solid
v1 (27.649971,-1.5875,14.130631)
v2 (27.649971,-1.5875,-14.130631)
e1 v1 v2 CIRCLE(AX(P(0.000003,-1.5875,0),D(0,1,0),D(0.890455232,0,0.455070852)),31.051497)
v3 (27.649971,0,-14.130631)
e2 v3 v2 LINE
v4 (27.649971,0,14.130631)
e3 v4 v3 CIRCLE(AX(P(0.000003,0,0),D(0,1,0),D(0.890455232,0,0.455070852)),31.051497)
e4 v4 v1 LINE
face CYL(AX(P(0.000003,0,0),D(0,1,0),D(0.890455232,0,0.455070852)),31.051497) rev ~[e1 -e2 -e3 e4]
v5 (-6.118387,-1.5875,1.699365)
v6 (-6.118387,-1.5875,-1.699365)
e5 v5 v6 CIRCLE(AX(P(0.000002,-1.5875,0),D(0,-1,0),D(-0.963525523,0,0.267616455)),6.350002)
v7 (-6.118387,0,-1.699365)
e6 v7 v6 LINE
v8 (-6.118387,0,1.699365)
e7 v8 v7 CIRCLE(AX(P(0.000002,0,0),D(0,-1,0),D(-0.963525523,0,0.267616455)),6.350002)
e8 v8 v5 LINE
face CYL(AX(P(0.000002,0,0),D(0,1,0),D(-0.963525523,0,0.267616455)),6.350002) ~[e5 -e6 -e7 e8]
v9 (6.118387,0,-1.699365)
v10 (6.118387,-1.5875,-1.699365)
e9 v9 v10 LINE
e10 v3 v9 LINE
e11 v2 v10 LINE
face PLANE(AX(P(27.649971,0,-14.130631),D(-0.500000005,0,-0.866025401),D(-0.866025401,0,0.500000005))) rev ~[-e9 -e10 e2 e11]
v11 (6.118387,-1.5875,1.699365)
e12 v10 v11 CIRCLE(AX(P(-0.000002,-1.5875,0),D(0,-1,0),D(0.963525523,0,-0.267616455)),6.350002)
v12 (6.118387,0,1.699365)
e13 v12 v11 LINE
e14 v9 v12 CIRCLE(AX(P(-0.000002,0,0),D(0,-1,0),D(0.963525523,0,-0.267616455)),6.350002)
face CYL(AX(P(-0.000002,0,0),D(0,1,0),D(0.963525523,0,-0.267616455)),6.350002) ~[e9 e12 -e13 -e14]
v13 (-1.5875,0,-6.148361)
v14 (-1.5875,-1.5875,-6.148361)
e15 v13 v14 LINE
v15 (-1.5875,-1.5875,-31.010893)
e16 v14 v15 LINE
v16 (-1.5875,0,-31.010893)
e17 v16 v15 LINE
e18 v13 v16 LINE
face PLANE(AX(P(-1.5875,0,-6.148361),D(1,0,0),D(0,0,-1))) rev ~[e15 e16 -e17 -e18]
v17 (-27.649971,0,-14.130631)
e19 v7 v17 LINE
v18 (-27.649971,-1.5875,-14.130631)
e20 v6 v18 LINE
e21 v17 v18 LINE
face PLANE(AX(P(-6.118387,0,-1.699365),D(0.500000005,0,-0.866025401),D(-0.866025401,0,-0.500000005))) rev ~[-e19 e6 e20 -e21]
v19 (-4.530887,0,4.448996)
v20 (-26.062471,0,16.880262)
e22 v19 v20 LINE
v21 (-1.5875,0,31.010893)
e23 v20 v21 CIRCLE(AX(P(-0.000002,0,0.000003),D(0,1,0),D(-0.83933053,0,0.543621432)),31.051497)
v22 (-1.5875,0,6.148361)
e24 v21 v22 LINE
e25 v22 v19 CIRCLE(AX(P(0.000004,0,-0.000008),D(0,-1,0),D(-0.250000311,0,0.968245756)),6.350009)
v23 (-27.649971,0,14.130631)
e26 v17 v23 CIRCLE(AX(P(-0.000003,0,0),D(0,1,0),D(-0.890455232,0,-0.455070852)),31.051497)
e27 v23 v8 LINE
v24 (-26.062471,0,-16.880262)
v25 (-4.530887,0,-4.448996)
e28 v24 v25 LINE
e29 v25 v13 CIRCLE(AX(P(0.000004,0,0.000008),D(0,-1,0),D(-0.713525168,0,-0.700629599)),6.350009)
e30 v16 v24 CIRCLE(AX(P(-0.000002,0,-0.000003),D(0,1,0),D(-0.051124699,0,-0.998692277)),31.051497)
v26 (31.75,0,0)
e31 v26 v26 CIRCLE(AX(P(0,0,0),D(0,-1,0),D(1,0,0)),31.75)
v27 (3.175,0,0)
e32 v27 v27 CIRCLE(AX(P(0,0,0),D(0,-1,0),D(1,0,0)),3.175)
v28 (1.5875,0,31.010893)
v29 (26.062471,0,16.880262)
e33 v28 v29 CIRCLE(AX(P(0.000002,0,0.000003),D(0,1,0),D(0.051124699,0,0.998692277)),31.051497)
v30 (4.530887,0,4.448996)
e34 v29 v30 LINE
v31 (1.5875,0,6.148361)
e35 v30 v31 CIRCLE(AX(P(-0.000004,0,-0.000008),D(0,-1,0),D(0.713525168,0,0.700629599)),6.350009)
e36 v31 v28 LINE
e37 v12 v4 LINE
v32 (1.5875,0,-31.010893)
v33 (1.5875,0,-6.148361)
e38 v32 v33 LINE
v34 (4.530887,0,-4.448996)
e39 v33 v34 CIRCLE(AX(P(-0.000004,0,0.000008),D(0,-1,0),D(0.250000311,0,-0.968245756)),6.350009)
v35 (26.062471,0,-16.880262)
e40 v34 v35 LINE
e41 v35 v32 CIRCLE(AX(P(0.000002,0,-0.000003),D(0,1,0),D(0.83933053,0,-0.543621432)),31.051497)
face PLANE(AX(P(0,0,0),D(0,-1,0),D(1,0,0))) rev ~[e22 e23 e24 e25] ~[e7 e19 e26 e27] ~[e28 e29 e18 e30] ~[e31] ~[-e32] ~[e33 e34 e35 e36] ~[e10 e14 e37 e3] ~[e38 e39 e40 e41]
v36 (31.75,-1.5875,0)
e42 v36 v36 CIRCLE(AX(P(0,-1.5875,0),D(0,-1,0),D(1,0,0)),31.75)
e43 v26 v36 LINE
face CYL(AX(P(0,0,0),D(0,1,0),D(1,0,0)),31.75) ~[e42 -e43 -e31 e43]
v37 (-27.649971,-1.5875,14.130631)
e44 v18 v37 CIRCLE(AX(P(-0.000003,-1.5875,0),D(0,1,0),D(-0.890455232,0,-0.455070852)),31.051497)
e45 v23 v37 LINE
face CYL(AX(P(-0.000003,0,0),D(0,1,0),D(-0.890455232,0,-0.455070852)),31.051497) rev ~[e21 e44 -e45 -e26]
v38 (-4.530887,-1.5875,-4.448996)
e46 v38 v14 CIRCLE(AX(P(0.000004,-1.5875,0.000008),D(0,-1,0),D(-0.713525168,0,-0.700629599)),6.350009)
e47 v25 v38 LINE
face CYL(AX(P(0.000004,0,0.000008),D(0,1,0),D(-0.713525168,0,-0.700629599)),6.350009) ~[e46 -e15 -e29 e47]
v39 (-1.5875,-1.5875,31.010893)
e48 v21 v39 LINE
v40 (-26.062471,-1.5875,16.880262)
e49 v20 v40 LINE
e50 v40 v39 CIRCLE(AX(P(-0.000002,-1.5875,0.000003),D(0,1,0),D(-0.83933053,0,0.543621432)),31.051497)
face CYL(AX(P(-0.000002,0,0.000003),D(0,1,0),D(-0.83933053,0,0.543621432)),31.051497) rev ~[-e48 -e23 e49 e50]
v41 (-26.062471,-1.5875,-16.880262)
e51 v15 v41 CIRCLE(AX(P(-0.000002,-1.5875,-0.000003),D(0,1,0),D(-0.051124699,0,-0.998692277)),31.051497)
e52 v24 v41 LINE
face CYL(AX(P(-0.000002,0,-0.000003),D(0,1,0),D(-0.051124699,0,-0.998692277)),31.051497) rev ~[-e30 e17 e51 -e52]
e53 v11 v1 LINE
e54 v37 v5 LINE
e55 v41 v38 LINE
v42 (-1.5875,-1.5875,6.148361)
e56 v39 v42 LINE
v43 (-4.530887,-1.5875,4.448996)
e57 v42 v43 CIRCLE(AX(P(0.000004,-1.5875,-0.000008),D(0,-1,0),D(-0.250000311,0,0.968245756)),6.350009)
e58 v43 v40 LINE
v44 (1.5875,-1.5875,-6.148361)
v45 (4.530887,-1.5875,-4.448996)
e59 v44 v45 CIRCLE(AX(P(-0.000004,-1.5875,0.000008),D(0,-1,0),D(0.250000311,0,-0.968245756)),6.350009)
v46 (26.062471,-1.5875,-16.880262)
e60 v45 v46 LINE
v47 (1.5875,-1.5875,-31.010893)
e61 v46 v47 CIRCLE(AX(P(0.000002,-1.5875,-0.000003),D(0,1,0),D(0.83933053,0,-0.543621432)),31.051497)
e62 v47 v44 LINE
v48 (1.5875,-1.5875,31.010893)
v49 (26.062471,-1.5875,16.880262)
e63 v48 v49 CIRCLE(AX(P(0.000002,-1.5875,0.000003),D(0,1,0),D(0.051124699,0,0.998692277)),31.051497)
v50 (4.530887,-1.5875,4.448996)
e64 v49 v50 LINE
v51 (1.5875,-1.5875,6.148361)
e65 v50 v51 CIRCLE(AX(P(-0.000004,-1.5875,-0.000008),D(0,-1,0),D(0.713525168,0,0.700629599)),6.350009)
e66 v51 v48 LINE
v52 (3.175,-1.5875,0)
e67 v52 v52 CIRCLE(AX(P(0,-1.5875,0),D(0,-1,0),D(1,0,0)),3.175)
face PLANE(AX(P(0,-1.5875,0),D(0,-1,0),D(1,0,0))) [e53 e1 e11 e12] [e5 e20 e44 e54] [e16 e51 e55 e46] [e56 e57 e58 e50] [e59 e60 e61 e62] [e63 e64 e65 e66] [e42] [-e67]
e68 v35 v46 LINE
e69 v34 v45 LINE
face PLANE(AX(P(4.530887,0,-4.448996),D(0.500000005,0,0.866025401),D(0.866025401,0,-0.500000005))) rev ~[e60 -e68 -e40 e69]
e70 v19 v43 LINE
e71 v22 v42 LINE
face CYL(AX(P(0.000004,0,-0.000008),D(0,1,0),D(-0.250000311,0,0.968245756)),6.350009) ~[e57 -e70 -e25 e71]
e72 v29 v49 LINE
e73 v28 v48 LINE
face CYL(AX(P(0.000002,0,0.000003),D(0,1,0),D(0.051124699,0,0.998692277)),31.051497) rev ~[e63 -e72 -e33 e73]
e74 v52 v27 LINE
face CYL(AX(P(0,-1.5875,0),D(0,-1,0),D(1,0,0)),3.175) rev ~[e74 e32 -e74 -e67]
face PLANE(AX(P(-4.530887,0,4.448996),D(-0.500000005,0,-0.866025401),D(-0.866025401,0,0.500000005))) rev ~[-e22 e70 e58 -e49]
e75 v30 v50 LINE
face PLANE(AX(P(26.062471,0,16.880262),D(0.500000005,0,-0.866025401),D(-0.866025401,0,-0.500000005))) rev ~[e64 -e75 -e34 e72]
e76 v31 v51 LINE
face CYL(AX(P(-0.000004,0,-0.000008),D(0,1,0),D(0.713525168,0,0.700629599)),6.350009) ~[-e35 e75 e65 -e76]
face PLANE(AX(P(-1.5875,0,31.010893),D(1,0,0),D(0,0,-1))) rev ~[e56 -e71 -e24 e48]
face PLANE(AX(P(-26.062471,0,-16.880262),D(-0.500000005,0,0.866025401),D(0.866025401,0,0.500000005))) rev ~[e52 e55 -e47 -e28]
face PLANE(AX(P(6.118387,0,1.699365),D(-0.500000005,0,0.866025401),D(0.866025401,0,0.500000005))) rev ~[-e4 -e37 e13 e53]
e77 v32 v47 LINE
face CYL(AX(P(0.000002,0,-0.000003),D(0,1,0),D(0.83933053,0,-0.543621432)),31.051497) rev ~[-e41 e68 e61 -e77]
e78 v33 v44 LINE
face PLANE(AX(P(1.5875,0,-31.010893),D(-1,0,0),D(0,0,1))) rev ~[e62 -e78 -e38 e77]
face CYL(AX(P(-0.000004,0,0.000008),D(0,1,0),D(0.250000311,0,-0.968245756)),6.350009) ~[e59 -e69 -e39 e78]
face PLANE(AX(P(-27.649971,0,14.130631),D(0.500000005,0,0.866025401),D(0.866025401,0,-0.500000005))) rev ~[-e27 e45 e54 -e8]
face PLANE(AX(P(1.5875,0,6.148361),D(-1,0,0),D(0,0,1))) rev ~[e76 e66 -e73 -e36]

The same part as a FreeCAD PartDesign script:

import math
import FreeCAD as App
import Part
import Sketcher
Q = App.Units.Quantity

doc = App.newDocument("Part")
body = doc.addObject("PartDesign::Body", "Body")

# Sketch on XZ plane
sketch1 = body.newObject("Sketcher::SketchObject", "Sketch")
sketch1.AttachmentSupport = (doc.getObject("XZ_Plane"), [""])
sketch1.MapMode = "FlatFace"
sketch1.addGeometry([
    Part.Circle(App.Vector(0, 0, 0), App.Vector(0, 0, 1), 31.8),  # 0
    Part.ArcOfCircle(Part.Circle(App.Vector(0, 0, 0), App.Vector(0, 0, 1), 31.1), math.radians(-147), math.radians(-93)),  # 1
    Part.LineSegment(App.Vector(-26.1, -16.9, 0), App.Vector(-4.5, -4.4, 0)),  # 2
    Part.ArcOfCircle(Part.Circle(App.Vector(0, 0, 0), App.Vector(0, 0, 1), 6.4), math.radians(-136), math.radians(-104)),  # 3
    Part.LineSegment(App.Vector(-1.6, -6.1, 0), App.Vector(-1.6, -31, 0)),  # 4
    Part.LineSegment(App.Vector(1.6, -31, 0), App.Vector(1.6, -6.1, 0)),  # 5
    Part.ArcOfCircle(Part.Circle(App.Vector(0, 0, 0), App.Vector(0, 0, 1), 6.4), math.radians(-76), math.radians(-44)),  # 6
    Part.LineSegment(App.Vector(4.5, -4.4, 0), App.Vector(26.1, -16.9, 0)),  # 7
    Part.ArcOfCircle(Part.Circle(App.Vector(0, 0, 0), App.Vector(0, 0, 1), 31.1), math.radians(-87), math.radians(-33)),  # 8
    Part.LineSegment(App.Vector(-27.6, 14.1, 0), App.Vector(-6.1, 1.7, 0)),  # 9
    Part.ArcOfCircle(Part.Circle(App.Vector(0, 0, 0), App.Vector(0, 0, 1), 6.4), math.radians(164), math.radians(196)),  # 10
    Part.LineSegment(App.Vector(-6.1, -1.7, 0), App.Vector(-27.6, -14.1, 0)),  # 11
    Part.ArcOfCircle(Part.Circle(App.Vector(0, 0, 0), App.Vector(0, 0, 1), 31.1), math.radians(153), math.radians(207)),  # 12
    Part.LineSegment(App.Vector(-4.5, 4.4, 0), App.Vector(-26.1, 16.9, 0)),  # 13
    Part.ArcOfCircle(Part.Circle(App.Vector(0, 0, 0), App.Vector(0, 0, 1), 31.1), math.radians(93), math.radians(147)),  # 14
    Part.LineSegment(App.Vector(-1.6, 31, 0), App.Vector(-1.6, 6.1, 0)),  # 15
    Part.ArcOfCircle(Part.Circle(App.Vector(0, 0, 0), App.Vector(0, 0, 1), 6.4), math.radians(104), math.radians(136)),  # 16
    Part.LineSegment(App.Vector(27.6, -14.1, 0), App.Vector(6.1, -1.7, 0)),  # 17
    Part.ArcOfCircle(Part.Circle(App.Vector(0, 0, 0), App.Vector(0, 0, 1), 6.4), math.radians(-16), math.radians(16)),  # 18
    Part.LineSegment(App.Vector(6.1, 1.7, 0), App.Vector(27.6, 14.1, 0)),  # 19
    Part.ArcOfCircle(Part.Circle(App.Vector(0, 0, 0), App.Vector(0, 0, 1), 31.1), math.radians(-27), math.radians(27)),  # 20
    Part.LineSegment(App.Vector(26.1, 16.9, 0), App.Vector(4.5, 4.4, 0)),  # 21
    Part.ArcOfCircle(Part.Circle(App.Vector(0, 0, 0), App.Vector(0, 0, 1), 6.4), math.radians(44), math.radians(76)),  # 22
    Part.LineSegment(App.Vector(1.6, 6.1, 0), App.Vector(1.6, 31, 0)),  # 23
    Part.ArcOfCircle(Part.Circle(App.Vector(0, 0, 0), App.Vector(0, 0, 1), 31.1), math.radians(33), math.radians(87)),  # 24
], False)
sketch1.addConstraint([
    Sketcher.Constraint("Coincident", 1, 1, 2, 1),
    Sketcher.Constraint("Coincident", 2, 2, 3, 1),
    Sketcher.Constraint("Coincident", 3, 2, 4, 1),
    Sketcher.Constraint("Coincident", 4, 2, 1, 2),
    Sketcher.Constraint("Coincident", 5, 2, 6, 1),
    Sketcher.Constraint("Coincident", 6, 2, 7, 1),
    Sketcher.Constraint("Coincident", 7, 2, 8, 2),
    Sketcher.Constraint("Coincident", 8, 1, 5, 1),
    Sketcher.Constraint("Coincident", 9, 2, 10, 1),
    Sketcher.Constraint("Coincident", 10, 2, 11, 1),
    Sketcher.Constraint("Coincident", 11, 2, 12, 2),
    Sketcher.Constraint("Coincident", 12, 1, 9, 1),
    Sketcher.Constraint("Coincident", 13, 2, 14, 2),
    Sketcher.Constraint("Coincident", 14, 1, 15, 1),
    Sketcher.Constraint("Coincident", 15, 2, 16, 1),
    Sketcher.Constraint("Coincident", 16, 2, 13, 1),
    Sketcher.Constraint("Coincident", 17, 2, 18, 1),
    Sketcher.Constraint("Coincident", 18, 2, 19, 1),
    Sketcher.Constraint("Coincident", 19, 2, 20, 2),
    Sketcher.Constraint("Coincident", 20, 1, 17, 1),
    Sketcher.Constraint("Coincident", 21, 2, 22, 1),
    Sketcher.Constraint("Coincident", 22, 2, 23, 1),
    Sketcher.Constraint("Coincident", 23, 2, 24, 2),
    Sketcher.Constraint("Coincident", 24, 1, 21, 1),
    Sketcher.Constraint("Vertical", 4),
    Sketcher.Constraint("Vertical", 5),
    Sketcher.Constraint("Vertical", 15),
    Sketcher.Constraint("Vertical", 23),
    Sketcher.Constraint("Coincident", 0, 3, -1, 1),
    Sketcher.Constraint("Coincident", 1, 3, -1, 1),
    Sketcher.Constraint("Coincident", 3, 3, -1, 1),
    Sketcher.Constraint("Coincident", 6, 3, -1, 1),
    Sketcher.Constraint("Coincident", 8, 3, -1, 1),
    Sketcher.Constraint("Coincident", 10, 3, -1, 1),
    Sketcher.Constraint("Coincident", 12, 3, -1, 1),
    Sketcher.Constraint("Coincident", 14, 3, -1, 1),
    Sketcher.Constraint("Coincident", 16, 3, -1, 1),
    Sketcher.Constraint("Coincident", 18, 3, -1, 1),
    Sketcher.Constraint("Coincident", 20, 3, -1, 1),
    Sketcher.Constraint("Coincident", 22, 3, -1, 1),
    Sketcher.Constraint("Coincident", 24, 3, -1, 1),
    Sketcher.Constraint("Equal", 3, 6),
    Sketcher.Constraint("Equal", 1, 8),
    Sketcher.Constraint("Equal", 8, 12),
    Sketcher.Constraint("Equal", 12, 14),
    Sketcher.Constraint("Equal", 6, 16),
    Sketcher.Constraint("Equal", 10, 18),
    Sketcher.Constraint("Equal", 14, 20),
    Sketcher.Constraint("Equal", 16, 22),
    Sketcher.Constraint("Equal", 20, 24),
    Sketcher.Constraint("Parallel", 7, 9),
    Sketcher.Constraint("Parallel", 2, 11),
    Sketcher.Constraint("Parallel", 9, 13),
    Sketcher.Constraint("Parallel", 13, 17),
    Sketcher.Constraint("Parallel", 11, 19),
    Sketcher.Constraint("Parallel", 19, 21),
    Sketcher.Constraint("Horizontal", 3, 2, 5, 2),
    Sketcher.Constraint("Horizontal", 2, 2, 6, 2),
    Sketcher.Constraint("Horizontal", 1, 1, 7, 2),
    Sketcher.Constraint("Horizontal", 10, 2, 17, 2),
    Sketcher.Constraint("Horizontal", 9, 2, 18, 2),
    Sketcher.Constraint("Horizontal", 16, 2, 21, 2),
    Sketcher.Constraint("Horizontal", 15, 2, 22, 2),
    Sketcher.Constraint("Vertical", 9, 2, 10, 2),
    Sketcher.Constraint("Vertical", 1, 1, 13, 2),
    Sketcher.Constraint("Vertical", 4, 2, 14, 1),
    Sketcher.Constraint("Equal", 7, 9),
    Sketcher.Constraint("Diameter", 0, Q("2.5 in")),
    Sketcher.Constraint("Radius", 10, Q("0.2500001 in")),
    Sketcher.Constraint("Angle", 2, Q("30 deg")),
    Sketcher.Constraint("Radius", 1, Q("1.2224999 in")),
    Sketcher.Constraint("DistanceX", 3, 2, -1, 1, Q("0.0625 in")),
    Sketcher.Constraint("Radius", 3, 6.350009),
    Sketcher.Constraint("DistanceX", 10, 2, 2, 2, Q("0.0625 in")),
])
pad1 = body.newObject("PartDesign::Pad", "Pad")
pad1.Profile = sketch1
pad1.Length = Q("0.0625 in")

# Sketch on XZ plane
sketch2 = body.newObject("Sketcher::SketchObject", "Sketch001")
sketch2.AttachmentSupport = (doc.getObject("XZ_Plane"), [""])
sketch2.MapMode = "FlatFace"
sketch2.AttachmentOffset = App.Placement(App.Vector(0, 0, 0.0625 * 25.4), App.Rotation())
sketch2.addGeometry(Part.Circle(App.Vector(0, 0, 0), App.Vector(0, 0, 1), 3.2), False)
sketch2.addConstraint([
    Sketcher.Constraint("Coincident", 0, 3, -1, 1),
    Sketcher.Constraint("Diameter", 0, Q("0.25 in")),
])
pocket1 = body.newObject("PartDesign::Pocket", "Pocket")
pocket1.Profile = sketch2
pocket1.Length = Q("1 in")

doc.recompute()
